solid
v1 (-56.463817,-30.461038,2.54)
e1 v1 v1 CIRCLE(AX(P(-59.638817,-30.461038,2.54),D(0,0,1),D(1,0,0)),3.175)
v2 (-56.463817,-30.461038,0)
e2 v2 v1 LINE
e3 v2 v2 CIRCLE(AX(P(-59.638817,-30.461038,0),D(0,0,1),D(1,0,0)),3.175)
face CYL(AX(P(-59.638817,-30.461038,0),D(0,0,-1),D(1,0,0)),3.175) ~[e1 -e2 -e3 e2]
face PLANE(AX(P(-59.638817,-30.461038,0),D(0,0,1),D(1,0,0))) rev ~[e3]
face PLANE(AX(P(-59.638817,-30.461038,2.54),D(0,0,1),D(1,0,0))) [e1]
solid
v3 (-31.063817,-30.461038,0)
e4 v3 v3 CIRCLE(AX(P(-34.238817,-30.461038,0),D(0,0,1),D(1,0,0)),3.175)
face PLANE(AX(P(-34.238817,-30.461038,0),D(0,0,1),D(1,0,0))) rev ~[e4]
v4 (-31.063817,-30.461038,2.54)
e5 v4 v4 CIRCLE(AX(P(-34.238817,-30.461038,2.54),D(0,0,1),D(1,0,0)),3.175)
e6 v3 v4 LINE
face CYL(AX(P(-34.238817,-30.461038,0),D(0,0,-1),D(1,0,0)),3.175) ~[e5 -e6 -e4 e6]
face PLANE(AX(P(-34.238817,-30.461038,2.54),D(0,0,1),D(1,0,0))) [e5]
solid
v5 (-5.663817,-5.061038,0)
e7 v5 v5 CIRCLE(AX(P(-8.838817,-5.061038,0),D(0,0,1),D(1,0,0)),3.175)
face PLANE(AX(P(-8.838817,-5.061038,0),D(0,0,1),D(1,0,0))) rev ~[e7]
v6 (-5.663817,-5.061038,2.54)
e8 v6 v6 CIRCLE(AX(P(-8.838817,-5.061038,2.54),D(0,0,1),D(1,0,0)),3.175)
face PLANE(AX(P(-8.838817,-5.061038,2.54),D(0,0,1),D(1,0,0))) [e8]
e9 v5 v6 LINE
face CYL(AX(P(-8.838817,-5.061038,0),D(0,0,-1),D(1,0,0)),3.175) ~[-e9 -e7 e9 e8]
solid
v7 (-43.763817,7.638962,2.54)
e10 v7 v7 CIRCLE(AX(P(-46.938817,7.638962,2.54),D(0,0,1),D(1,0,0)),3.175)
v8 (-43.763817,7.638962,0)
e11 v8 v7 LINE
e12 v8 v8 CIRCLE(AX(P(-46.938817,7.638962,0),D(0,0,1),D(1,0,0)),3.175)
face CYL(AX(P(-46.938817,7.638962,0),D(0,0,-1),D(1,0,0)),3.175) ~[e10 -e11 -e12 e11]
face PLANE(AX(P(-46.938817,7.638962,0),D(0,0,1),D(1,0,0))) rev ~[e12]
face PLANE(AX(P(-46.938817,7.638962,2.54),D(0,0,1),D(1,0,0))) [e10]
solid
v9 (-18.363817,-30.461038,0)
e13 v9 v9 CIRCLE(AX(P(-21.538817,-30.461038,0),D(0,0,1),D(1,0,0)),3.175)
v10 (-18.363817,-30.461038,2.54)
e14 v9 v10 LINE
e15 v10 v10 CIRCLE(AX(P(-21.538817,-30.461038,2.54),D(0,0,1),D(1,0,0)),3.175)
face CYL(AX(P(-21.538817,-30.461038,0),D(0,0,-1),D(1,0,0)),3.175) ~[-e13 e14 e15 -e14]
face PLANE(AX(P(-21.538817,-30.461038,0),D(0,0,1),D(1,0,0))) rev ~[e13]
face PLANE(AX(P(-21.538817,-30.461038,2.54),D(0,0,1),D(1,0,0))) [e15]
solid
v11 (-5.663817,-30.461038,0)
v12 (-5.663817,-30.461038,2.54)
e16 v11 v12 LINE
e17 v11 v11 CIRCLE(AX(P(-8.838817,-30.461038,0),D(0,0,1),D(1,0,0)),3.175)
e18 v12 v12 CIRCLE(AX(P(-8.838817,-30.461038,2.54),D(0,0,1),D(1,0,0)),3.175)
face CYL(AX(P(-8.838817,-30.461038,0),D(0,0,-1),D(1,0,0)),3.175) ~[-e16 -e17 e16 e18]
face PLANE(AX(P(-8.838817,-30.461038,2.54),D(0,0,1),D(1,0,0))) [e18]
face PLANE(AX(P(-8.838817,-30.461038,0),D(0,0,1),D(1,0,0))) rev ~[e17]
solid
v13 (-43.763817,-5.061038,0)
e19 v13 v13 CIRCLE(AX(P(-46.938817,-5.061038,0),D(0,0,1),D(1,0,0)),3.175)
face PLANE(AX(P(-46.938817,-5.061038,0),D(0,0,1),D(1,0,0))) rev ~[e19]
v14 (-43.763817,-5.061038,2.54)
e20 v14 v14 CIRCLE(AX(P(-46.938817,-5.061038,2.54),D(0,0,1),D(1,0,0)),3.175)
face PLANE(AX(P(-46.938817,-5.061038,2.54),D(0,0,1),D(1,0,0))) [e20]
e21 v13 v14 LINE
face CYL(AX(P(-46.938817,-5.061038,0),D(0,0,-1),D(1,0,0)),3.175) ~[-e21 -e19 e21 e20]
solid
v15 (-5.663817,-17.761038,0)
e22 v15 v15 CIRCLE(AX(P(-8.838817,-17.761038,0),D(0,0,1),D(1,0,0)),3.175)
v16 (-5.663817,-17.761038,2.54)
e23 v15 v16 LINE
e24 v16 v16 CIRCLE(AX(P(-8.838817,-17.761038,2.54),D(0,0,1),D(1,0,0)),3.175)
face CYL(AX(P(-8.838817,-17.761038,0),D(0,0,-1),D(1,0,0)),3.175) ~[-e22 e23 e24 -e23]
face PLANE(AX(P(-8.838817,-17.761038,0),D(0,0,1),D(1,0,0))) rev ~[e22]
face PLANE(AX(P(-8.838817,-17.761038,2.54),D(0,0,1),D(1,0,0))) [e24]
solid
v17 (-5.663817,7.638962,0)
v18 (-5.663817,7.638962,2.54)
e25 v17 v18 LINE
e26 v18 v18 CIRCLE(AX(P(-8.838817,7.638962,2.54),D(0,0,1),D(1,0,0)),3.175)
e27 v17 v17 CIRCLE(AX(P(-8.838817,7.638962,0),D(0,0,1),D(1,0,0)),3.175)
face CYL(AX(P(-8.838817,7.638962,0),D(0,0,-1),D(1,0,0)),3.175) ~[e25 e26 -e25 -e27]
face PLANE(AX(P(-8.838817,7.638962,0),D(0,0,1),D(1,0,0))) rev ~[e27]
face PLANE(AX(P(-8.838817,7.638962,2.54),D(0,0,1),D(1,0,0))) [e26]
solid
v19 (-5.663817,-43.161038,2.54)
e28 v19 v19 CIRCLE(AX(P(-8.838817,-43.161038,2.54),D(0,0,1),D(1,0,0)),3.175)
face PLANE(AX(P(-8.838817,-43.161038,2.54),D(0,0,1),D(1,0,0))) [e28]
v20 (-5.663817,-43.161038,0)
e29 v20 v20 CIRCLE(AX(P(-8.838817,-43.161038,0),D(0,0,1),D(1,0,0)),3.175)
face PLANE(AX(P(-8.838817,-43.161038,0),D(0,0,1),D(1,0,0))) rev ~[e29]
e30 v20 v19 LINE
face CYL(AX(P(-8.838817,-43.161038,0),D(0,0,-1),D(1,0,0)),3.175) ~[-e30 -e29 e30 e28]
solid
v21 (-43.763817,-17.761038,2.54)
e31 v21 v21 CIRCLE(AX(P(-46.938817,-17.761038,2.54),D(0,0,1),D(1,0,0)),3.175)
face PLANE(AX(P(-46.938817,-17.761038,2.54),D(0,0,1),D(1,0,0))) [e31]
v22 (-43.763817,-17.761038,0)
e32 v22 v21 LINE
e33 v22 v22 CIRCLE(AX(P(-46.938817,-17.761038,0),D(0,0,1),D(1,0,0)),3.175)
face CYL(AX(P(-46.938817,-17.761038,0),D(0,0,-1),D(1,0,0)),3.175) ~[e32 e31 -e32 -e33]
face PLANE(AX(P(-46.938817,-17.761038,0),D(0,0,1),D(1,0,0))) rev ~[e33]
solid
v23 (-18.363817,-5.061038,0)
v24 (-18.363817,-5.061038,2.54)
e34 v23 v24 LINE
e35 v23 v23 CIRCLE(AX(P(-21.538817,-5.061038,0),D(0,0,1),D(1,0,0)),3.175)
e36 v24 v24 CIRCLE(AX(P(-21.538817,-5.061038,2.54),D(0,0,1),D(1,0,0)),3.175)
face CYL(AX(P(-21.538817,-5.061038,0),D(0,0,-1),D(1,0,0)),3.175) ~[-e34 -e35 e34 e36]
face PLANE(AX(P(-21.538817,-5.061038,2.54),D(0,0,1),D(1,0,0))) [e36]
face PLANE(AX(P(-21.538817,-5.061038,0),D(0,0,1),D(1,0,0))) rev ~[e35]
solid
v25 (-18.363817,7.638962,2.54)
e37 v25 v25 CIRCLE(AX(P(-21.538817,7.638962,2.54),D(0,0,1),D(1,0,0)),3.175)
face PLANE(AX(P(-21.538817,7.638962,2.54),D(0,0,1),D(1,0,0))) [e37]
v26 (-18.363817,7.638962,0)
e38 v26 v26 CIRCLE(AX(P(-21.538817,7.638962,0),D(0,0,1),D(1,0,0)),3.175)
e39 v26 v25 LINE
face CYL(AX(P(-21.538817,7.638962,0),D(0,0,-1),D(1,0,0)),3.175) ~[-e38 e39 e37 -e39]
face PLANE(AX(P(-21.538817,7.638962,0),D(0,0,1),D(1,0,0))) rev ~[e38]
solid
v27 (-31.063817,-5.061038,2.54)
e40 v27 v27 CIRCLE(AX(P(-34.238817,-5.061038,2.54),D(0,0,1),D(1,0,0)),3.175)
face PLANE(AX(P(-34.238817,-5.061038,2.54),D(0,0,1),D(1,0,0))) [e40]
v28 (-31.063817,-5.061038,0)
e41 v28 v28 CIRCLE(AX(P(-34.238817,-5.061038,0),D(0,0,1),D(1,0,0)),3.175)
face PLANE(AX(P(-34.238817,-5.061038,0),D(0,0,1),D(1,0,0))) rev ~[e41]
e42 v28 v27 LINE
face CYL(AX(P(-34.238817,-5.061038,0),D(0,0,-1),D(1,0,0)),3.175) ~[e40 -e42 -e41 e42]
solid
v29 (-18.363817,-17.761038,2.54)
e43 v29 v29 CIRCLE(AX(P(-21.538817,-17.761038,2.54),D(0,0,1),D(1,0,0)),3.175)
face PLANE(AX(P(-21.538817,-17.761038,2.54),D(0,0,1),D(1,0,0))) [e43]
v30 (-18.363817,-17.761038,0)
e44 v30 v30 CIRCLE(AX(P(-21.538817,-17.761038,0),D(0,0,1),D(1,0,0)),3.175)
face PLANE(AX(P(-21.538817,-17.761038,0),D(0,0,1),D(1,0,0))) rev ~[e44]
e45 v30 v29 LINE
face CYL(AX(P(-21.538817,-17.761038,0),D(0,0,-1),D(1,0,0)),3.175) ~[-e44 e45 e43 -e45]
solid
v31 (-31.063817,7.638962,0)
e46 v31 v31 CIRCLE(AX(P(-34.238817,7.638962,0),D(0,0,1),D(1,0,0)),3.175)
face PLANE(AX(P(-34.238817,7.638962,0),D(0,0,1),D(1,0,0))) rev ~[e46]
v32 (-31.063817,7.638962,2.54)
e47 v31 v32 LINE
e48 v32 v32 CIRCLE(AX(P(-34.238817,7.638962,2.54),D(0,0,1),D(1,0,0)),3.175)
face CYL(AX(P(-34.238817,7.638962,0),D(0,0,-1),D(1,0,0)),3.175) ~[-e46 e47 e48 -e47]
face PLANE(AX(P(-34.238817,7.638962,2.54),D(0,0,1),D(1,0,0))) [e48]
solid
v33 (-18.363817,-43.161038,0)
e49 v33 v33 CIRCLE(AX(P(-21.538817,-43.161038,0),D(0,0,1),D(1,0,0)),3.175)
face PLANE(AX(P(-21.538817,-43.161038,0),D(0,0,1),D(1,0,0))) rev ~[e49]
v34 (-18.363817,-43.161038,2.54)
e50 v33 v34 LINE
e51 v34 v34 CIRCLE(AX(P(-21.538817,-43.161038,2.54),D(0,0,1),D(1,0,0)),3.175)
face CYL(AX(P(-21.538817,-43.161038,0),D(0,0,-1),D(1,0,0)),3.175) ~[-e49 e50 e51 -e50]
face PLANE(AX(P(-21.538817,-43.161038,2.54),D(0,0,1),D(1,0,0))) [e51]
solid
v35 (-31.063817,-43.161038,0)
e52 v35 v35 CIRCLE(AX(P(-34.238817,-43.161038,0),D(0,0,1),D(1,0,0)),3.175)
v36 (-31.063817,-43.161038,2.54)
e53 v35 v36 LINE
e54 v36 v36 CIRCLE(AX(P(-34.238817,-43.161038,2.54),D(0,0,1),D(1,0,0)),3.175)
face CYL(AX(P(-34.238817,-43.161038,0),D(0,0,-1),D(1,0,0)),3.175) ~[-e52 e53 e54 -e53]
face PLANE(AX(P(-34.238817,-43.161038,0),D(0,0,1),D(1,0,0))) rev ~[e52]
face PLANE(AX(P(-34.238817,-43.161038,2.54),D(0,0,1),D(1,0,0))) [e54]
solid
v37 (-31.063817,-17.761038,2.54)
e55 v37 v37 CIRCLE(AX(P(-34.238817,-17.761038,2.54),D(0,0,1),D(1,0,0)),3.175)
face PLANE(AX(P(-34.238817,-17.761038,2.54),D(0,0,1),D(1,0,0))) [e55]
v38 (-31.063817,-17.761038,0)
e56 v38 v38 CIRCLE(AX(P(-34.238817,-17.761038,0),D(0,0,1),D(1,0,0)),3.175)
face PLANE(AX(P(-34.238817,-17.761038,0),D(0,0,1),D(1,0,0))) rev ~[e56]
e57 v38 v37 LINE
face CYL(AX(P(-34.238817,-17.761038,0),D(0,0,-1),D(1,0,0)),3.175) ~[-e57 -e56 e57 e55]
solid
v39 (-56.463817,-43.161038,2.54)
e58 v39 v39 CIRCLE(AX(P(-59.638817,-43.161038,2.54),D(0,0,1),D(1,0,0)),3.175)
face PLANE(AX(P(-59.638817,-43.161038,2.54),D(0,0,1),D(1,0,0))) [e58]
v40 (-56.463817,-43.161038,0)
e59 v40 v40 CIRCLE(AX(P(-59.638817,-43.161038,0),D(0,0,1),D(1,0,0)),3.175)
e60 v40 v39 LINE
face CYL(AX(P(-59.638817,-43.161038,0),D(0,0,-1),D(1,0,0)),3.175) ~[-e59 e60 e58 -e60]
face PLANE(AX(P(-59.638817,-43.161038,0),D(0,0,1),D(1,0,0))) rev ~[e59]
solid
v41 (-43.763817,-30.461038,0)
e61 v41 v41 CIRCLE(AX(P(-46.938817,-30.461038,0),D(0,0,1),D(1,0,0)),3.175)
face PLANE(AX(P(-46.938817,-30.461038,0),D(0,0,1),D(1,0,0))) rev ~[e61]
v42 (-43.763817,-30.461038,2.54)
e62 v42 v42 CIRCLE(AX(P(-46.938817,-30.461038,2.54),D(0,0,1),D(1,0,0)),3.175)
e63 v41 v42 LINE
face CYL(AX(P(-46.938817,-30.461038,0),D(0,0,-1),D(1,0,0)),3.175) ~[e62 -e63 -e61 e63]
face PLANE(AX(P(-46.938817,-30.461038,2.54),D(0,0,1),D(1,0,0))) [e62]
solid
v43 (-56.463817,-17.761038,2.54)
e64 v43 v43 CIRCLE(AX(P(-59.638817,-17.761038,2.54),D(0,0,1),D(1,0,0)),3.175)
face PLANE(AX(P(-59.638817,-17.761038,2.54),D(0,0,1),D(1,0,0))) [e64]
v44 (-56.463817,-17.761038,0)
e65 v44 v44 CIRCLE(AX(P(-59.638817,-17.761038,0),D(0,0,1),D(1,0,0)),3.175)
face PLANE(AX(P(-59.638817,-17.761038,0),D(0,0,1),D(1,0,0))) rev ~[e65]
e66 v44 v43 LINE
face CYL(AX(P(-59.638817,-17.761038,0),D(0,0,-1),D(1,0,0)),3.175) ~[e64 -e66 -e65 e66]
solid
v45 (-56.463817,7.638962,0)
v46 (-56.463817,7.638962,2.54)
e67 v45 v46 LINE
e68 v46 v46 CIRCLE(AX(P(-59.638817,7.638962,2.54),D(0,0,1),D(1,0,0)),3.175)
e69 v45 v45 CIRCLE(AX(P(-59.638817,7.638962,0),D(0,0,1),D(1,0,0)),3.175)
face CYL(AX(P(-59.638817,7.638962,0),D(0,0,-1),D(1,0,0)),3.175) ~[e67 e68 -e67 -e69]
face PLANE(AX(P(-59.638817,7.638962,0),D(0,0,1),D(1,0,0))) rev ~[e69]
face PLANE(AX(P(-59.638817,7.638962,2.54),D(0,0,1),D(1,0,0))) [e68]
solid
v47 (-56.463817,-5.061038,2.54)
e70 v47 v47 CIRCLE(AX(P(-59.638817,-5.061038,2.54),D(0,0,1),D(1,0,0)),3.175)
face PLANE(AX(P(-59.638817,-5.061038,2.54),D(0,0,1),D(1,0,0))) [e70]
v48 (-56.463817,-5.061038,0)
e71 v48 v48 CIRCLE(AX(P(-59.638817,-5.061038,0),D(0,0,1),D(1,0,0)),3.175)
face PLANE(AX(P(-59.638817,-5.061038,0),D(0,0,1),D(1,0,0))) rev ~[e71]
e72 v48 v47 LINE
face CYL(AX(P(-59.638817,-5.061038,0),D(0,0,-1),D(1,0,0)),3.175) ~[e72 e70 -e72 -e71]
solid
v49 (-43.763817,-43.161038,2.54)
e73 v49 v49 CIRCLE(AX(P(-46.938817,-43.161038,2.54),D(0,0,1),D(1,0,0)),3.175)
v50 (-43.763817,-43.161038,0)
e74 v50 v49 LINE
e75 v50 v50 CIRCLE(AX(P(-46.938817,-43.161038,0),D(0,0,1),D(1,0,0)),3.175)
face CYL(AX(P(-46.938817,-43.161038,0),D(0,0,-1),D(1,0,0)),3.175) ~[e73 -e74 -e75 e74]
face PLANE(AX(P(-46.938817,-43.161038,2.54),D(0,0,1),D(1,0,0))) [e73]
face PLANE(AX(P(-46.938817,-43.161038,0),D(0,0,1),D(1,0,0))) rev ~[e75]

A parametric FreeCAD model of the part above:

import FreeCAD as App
import Part
import Sketcher
from FreeCAD import Vector
Q = App.Units.Quantity

doc = App.newDocument("Part")
body = doc.addObject("PartDesign::Body", "Body")
body.AllowCompound = True

sketch1 = doc.addObject("Sketcher::SketchObject", "Sketch")
body.addObject(sketch1)
sketch1.AttachmentSupport = (doc.XY_Plane, [""])
sketch1.MapMode = "FlatFace"
sketch1.addGeometry(Part.Circle(Vector(-59.638817, -43.161038, 0), Vector(0, 0, 1), 3.175), False)
sketch1.addGeometry(Part.Circle(Vector(-59.638817, -30.461038, 0), Vector(0, 0, 1), 3.175), False)
sketch1.addGeometry(Part.Circle(Vector(-59.638817, -17.761038, 0), Vector(0, 0, 1), 3.175), False)
sketch1.addGeometry(Part.Circle(Vector(-59.638817, -5.061038, 0), Vector(0, 0, 1), 3.175), False)
sketch1.addGeometry(Part.Circle(Vector(-59.638817, 7.638962, 0), Vector(0, 0, 1), 3.175), False)
sketch1.addGeometry(Part.Circle(Vector(-46.938817, -43.161038, 0), Vector(0, 0, 1), 3.175), False)
sketch1.addGeometry(Part.Circle(Vector(-46.938817, -30.461038, 0), Vector(0, 0, 1), 3.175), False)
sketch1.addGeometry(Part.Circle(Vector(-46.938817, -17.761038, 0), Vector(0, 0, 1), 3.175), False)
sketch1.addGeometry(Part.Circle(Vector(-46.938817, -5.061038, 0), Vector(0, 0, 1), 3.175), False)
sketch1.addGeometry(Part.Circle(Vector(-46.938817, 7.638962, 0), Vector(0, 0, 1), 3.175), False)
sketch1.addGeometry(Part.Circle(Vector(-34.238817, -43.161038, 0), Vector(0, 0, 1), 3.175), False)
sketch1.addGeometry(Part.Circle(Vector(-34.238817, -30.461038, 0), Vector(0, 0, 1), 3.175), False)
sketch1.addGeometry(Part.Circle(Vector(-34.238817, -17.761038, 0), Vector(0, 0, 1), 3.175), False)
sketch1.addGeometry(Part.Circle(Vector(-34.238817, -5.061038, 0), Vector(0, 0, 1), 3.175), False)
sketch1.addGeometry(Part.Circle(Vector(-34.238817, 7.638962, 0), Vector(0, 0, 1), 3.175), False)
sketch1.addGeometry(Part.Circle(Vector(-21.538817, -43.161038, 0), Vector(0, 0, 1), 3.175), False)
sketch1.addGeometry(Part.Circle(Vector(-21.538817, -30.461038, 0), Vector(0, 0, 1), 3.175), False)
sketch1.addGeometry(Part.Circle(Vector(-21.538817, -17.761038, 0), Vector(0, 0, 1), 3.175), False)
sketch1.addGeometry(Part.Circle(Vector(-21.538817, -5.061038, 0), Vector(0, 0, 1), 3.175), False)
sketch1.addGeometry(Part.Circle(Vector(-21.538817, 7.638962, 0), Vector(0, 0, 1), 3.175), False)
sketch1.addGeometry(Part.Circle(Vector(-8.838817, -43.161038, 0), Vector(0, 0, 1), 3.175), False)
sketch1.addGeometry(Part.Circle(Vector(-8.838817, -30.461038, 0), Vector(0, 0, 1), 3.175), False)
sketch1.addGeometry(Part.Circle(Vector(-8.838817, -17.761038, 0), Vector(0, 0, 1), 3.175), False)
sketch1.addGeometry(Part.Circle(Vector(-8.838817, -5.061038, 0), Vector(0, 0, 1), 3.175), False)
sketch1.addGeometry(Part.Circle(Vector(-8.838817, 7.638962, 0), Vector(0, 0, 1), 3.175), False)
sketch1.addConstraint(Sketcher.Constraint("Equal", 0, 1))
sketch1.addConstraint(Sketcher.Constraint("Equal", 1, 2))
sketch1.addConstraint(Sketcher.Constraint("Equal", 2, 3))
sketch1.addConstraint(Sketcher.Constraint("Equal", 3, 4))
sketch1.addConstraint(Sketcher.Constraint("Equal", 4, 5))
sketch1.addConstraint(Sketcher.Constraint("Equal", 5, 6))
sketch1.addConstraint(Sketcher.Constraint("Equal", 6, 7))
sketch1.addConstraint(Sketcher.Constraint("Equal", 7, 8))
sketch1.addConstraint(Sketcher.Constraint("Equal", 8, 9))
sketch1.addConstraint(Sketcher.Constraint("Equal", 9, 10))
sketch1.addConstraint(Sketcher.Constraint("Equal", 10, 11))
sketch1.addConstraint(Sketcher.Constraint("Equal", 11, 12))
sketch1.addConstraint(Sketcher.Constraint("Equal", 12, 13))
sketch1.addConstraint(Sketcher.Constraint("Equal", 13, 14))
sketch1.addConstraint(Sketcher.Constraint("Equal", 14, 15))
sketch1.addConstraint(Sketcher.Constraint("Equal", 15, 16))
sketch1.addConstraint(Sketcher.Constraint("Equal", 16, 17))
sketch1.addConstraint(Sketcher.Constraint("Equal", 17, 18))
sketch1.addConstraint(Sketcher.Constraint("Equal", 18, 19))
sketch1.addConstraint(Sketcher.Constraint("Equal", 19, 20))
sketch1.addConstraint(Sketcher.Constraint("Equal", 20, 21))
sketch1.addConstraint(Sketcher.Constraint("Equal", 21, 22))
sketch1.addConstraint(Sketcher.Constraint("Equal", 22, 23))
sketch1.addConstraint(Sketcher.Constraint("Equal", 23, 24))
sketch1.addConstraint(Sketcher.Constraint("Horizontal", 0, 3, 5, 3))
sketch1.addConstraint(Sketcher.Constraint("Horizontal", 1, 3, 6, 3))
sketch1.addConstraint(Sketcher.Constraint("Horizontal", 2, 3, 7, 3))
sketch1.addConstraint(Sketcher.Constraint("Horizontal", 3, 3, 8, 3))
sketch1.addConstraint(Sketcher.Constraint("Horizontal", 4, 3, 9, 3))
sketch1.addConstraint(Sketcher.Constraint("Horizontal", 5, 3, 10, 3))
sketch1.addConstraint(Sketcher.Constraint("Horizontal", 6, 3, 11, 3))
sketch1.addConstraint(Sketcher.Constraint("Horizontal", 7, 3, 12, 3))
sketch1.addConstraint(Sketcher.Constraint("Horizontal", 8, 3, 13, 3))
sketch1.addConstraint(Sketcher.Constraint("Horizontal", 9, 3, 14, 3))
sketch1.addConstraint(Sketcher.Constraint("Horizontal", 10, 3, 15, 3))
sketch1.addConstraint(Sketcher.Constraint("Horizontal", 11, 3, 16, 3))
sketch1.addConstraint(Sketcher.Constraint("Horizontal", 12, 3, 17, 3))
sketch1.addConstraint(Sketcher.Constraint("Horizontal", 13, 3, 18, 3))
sketch1.addConstraint(Sketcher.Constraint("Horizontal", 14, 3, 19, 3))
sketch1.addConstraint(Sketcher.Constraint("Horizontal", 15, 3, 20, 3))
sketch1.addConstraint(Sketcher.Constraint("Horizontal", 16, 3, 21, 3))
sketch1.addConstraint(Sketcher.Constraint("Horizontal", 17, 3, 22, 3))
sketch1.addConstraint(Sketcher.Constraint("Horizontal", 18, 3, 23, 3))
sketch1.addConstraint(Sketcher.Constraint("Horizontal", 19, 3, 24, 3))
sketch1.addConstraint(Sketcher.Constraint("Vertical", 0, 3, 1, 3))
sketch1.addConstraint(Sketcher.Constraint("Vertical", 1, 3, 2, 3))
sketch1.addConstraint(Sketcher.Constraint("Vertical", 2, 3, 3, 3))
sketch1.addConstraint(Sketcher.Constraint("Vertical", 3, 3, 4, 3))
sketch1.addConstraint(Sketcher.Constraint("Vertical", 5, 3, 6, 3))
sketch1.addConstraint(Sketcher.Constraint("Vertical", 6, 3, 7, 3))
sketch1.addConstraint(Sketcher.Constraint("Vertical", 7, 3, 8, 3))
sketch1.addConstraint(Sketcher.Constraint("Vertical", 8, 3, 9, 3))
sketch1.addConstraint(Sketcher.Constraint("Vertical", 10, 3, 11, 3))
sketch1.addConstraint(Sketcher.Constraint("Vertical", 11, 3, 12, 3))
sketch1.addConstraint(Sketcher.Constraint("Vertical", 12, 3, 13, 3))
sketch1.addConstraint(Sketcher.Constraint("Vertical", 13, 3, 14, 3))
sketch1.addConstraint(Sketcher.Constraint("Vertical", 15, 3, 16, 3))
sketch1.addConstraint(Sketcher.Constraint("Vertical", 16, 3, 17, 3))
sketch1.addConstraint(Sketcher.Constraint("Vertical", 17, 3, 18, 3))
sketch1.addConstraint(Sketcher.Constraint("Vertical", 18, 3, 19, 3))
sketch1.addConstraint(Sketcher.Constraint("Vertical", 20, 3, 21, 3))
sketch1.addConstraint(Sketcher.Constraint("Vertical", 21, 3, 22, 3))
sketch1.addConstraint(Sketcher.Constraint("Vertical", 22, 3, 23, 3))
sketch1.addConstraint(Sketcher.Constraint("Vertical", 23, 3, 24, 3))
sketch1.addConstraint(Sketcher.Constraint("Diameter", 0, Q("0.25 in")))
sketch1.addConstraint(Sketcher.Constraint("DistanceY", 0, 3, 2, 3, Q("1 in")))
sketch1.addConstraint(Sketcher.Constraint("DistanceY", 1, 3, 3, 3, Q("1 in")))
sketch1.addConstraint(Sketcher.Constraint("DistanceY", 2, 3, 4, 3, Q("1 in")))
sketch1.addConstraint(Sketcher.Constraint("DistanceX", 0, 3, 10, 3, Q("1 in")))
sketch1.addConstraint(Sketcher.Constraint("DistanceX", 5, 3, 15, 3, Q("1 in")))
sketch1.addConstraint(Sketcher.Constraint("DistanceX", 10, 3, 20, 3, Q("1 in")))
sketch1.addConstraint(Sketcher.Constraint("DistanceY", 0, 3, 1, 3, Q("0.5 in")))
sketch1.addConstraint(Sketcher.Constraint("DistanceX", 0, 3, 5, 3, Q("0.5 in")))
sketch1.addConstraint(Sketcher.Constraint("DistanceX", 0, 3, -1, 1, Q("59.638817 mm")))
sketch1.addConstraint(Sketcher.Constraint("DistanceY", 0, 3, -1, 1, Q("43.161038 mm")))
pad1 = doc.addObject("PartDesign::Pad", "Pad")
body.addObject(pad1)
pad1.Profile = sketch1
pad1.Length = Q("0.1 in")

doc.recompute()
